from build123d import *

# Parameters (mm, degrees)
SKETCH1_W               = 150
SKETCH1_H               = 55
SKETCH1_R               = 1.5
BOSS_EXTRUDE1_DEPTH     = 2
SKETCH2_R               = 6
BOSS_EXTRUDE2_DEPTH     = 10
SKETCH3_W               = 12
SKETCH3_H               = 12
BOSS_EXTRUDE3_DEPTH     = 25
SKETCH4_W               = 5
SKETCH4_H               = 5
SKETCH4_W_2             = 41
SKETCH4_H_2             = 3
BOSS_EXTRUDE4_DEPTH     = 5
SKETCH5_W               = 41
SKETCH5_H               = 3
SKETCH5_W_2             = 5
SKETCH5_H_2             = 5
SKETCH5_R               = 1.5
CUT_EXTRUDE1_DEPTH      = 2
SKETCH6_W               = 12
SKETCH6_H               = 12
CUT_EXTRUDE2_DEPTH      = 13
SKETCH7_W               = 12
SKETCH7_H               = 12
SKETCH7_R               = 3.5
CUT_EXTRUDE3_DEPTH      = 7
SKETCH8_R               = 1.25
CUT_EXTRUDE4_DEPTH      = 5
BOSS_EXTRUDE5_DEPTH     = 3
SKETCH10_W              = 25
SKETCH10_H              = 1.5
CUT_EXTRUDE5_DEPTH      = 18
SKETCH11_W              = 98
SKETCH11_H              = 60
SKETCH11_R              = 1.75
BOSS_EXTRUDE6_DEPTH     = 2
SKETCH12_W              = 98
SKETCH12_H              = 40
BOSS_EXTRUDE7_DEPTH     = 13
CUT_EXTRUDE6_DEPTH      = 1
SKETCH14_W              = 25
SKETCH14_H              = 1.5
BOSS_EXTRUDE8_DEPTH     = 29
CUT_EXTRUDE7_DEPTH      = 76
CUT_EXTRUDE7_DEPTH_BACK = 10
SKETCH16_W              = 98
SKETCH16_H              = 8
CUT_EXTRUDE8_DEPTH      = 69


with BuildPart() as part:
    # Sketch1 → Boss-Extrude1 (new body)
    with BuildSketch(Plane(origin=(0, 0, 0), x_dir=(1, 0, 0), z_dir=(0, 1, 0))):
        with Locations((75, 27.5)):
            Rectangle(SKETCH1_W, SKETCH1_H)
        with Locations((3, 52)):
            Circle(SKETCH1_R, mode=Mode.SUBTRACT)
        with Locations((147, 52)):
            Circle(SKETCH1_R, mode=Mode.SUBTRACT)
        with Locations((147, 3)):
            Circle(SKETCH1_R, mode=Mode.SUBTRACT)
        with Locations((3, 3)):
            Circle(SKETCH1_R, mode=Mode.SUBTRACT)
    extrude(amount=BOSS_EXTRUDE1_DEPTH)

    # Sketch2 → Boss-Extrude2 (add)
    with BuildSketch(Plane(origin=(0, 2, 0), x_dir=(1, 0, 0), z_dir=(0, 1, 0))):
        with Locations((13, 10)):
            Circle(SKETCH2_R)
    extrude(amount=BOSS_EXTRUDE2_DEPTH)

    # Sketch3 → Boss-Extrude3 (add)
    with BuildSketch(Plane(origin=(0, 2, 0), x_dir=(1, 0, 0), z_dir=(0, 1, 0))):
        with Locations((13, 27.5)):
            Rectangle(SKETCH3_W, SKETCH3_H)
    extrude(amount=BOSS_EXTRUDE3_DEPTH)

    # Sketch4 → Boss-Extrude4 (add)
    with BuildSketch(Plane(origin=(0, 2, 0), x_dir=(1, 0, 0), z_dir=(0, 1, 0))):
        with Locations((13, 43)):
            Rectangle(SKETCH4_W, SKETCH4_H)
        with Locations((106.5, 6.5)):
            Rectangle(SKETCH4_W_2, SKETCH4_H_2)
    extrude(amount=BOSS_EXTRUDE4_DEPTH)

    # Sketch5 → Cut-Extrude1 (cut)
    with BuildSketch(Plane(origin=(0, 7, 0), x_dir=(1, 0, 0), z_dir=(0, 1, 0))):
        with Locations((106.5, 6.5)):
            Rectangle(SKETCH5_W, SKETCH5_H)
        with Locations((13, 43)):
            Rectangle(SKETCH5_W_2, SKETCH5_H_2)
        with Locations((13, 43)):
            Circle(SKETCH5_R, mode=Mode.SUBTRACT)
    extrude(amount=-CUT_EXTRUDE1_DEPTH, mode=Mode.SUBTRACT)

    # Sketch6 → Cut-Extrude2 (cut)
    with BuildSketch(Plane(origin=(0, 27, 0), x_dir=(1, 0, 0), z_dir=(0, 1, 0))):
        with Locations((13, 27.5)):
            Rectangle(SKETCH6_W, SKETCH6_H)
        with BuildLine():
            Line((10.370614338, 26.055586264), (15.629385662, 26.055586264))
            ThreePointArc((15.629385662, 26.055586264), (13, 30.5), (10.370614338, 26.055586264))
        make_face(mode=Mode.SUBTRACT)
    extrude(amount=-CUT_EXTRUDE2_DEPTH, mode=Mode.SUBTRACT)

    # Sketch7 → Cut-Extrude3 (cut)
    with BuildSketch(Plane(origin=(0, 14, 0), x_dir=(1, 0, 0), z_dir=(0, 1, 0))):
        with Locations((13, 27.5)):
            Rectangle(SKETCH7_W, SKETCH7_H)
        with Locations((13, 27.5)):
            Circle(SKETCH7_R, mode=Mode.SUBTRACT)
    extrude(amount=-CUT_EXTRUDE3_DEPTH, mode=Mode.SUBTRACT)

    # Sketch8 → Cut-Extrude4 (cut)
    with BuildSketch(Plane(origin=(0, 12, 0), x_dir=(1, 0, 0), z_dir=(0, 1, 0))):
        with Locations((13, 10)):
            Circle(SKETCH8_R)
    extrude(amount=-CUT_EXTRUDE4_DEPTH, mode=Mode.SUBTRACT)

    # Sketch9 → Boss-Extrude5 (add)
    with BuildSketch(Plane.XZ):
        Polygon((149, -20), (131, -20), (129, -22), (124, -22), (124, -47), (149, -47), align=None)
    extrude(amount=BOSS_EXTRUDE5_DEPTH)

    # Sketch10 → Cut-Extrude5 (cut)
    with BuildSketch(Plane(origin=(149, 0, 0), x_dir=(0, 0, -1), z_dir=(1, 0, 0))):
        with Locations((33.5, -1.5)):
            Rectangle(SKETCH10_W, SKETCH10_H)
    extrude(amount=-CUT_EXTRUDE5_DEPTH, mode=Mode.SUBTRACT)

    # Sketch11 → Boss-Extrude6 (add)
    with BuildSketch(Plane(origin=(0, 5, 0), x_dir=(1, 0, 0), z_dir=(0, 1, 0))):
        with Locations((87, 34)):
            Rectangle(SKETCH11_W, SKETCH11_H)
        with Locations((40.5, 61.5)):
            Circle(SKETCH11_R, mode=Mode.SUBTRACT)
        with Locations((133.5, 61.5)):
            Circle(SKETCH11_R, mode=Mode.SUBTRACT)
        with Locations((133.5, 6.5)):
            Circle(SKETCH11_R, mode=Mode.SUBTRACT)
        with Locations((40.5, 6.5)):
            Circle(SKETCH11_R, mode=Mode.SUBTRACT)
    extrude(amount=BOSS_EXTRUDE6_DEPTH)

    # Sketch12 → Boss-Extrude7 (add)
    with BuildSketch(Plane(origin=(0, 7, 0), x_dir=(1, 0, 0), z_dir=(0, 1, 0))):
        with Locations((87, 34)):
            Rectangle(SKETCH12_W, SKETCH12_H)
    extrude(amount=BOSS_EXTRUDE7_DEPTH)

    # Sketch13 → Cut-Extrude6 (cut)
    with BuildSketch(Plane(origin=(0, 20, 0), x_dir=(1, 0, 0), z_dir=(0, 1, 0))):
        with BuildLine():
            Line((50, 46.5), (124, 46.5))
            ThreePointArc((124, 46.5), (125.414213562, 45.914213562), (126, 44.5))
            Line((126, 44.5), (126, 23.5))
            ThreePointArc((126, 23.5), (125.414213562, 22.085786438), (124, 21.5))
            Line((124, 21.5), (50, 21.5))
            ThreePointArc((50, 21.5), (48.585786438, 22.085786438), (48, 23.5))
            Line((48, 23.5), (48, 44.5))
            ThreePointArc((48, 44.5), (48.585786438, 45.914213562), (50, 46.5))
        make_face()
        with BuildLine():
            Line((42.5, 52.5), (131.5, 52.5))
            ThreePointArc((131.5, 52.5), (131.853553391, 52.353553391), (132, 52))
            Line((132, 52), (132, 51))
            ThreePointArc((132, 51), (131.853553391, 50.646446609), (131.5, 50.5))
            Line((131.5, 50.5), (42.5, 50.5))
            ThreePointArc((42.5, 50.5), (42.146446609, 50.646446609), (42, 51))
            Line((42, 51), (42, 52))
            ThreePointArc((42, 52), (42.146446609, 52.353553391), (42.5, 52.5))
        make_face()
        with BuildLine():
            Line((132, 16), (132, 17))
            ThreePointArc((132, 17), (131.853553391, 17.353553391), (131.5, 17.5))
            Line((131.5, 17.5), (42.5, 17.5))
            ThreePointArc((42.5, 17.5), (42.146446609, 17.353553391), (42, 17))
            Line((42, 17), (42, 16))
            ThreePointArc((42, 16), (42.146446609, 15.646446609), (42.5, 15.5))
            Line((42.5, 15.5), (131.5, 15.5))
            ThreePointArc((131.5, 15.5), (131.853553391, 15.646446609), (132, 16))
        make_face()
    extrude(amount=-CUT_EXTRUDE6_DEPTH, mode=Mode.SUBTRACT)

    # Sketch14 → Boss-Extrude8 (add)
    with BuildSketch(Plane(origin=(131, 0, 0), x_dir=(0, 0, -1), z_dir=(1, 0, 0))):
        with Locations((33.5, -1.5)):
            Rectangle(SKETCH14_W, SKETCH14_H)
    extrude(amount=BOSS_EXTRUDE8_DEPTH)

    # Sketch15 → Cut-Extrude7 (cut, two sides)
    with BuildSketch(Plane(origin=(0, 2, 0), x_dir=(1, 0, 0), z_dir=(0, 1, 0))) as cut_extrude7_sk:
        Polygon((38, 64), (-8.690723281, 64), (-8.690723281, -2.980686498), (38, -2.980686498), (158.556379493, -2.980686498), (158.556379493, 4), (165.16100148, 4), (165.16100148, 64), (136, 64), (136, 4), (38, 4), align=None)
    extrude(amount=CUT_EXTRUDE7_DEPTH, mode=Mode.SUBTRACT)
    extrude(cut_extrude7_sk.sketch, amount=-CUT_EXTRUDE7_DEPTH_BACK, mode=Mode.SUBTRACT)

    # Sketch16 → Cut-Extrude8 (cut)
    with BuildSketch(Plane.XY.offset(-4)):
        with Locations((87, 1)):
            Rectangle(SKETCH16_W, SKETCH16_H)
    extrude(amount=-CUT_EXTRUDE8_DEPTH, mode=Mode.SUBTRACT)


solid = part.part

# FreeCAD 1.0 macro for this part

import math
import FreeCAD as App
import Part
import Sketcher

V = App.Vector
Q = App.Units.Quantity

doc = App.newDocument("Part")
body = doc.addObject("PartDesign::Body", "Body")

sketch1 = doc.addObject("Sketcher::SketchObject", "Sketch")
body.addObject(sketch1)
sketch1.AttachmentSupport = (doc.XZ_Plane, [""])
sketch1.MapMode = "FlatFace"
sketch1.addGeometry([
    Part.LineSegment(V(0, -55, 0), V(0, 0, 0)),
    Part.LineSegment(V(0, 0, 0), V(150, 0, 0)),
    Part.LineSegment(V(150, 0, 0), V(150, -55, 0)),
    Part.LineSegment(V(150, -55, 0), V(0, -55, 0)),
    Part.Circle(V(3, -3, 0), V(0, 0, 1), 1.5),
    Part.Circle(V(147, -3, 0), V(0, 0, 1), 1.5),
    Part.Circle(V(3, -52, 0), V(0, 0, 1), 1.5),
    Part.Circle(V(147, -52, 0), V(0, 0, 1), 1.5),
], False)
sketch1.addConstraint([
    Sketcher.Constraint("Coincident", 0, 2, 1, 1),
    Sketcher.Constraint("Coincident", 1, 2, 2, 1),
    Sketcher.Constraint("Coincident", 2, 2, 3, 1),
    Sketcher.Constraint("Coincident", 3, 2, 0, 1),
    Sketcher.Constraint("Vertical", 0),
    Sketcher.Constraint("Horizontal", 1),
    Sketcher.Constraint("Vertical", 2),
    Sketcher.Constraint("Horizontal", 3),
    Sketcher.Constraint("Coincident", 0, 2, -1, 1),
    Sketcher.Constraint("Equal", 4, 5),
    Sketcher.Constraint("Equal", 5, 6),
    Sketcher.Constraint("Equal", 6, 7),
    Sketcher.Constraint("Horizontal", 4, 3, 5, 3),
    Sketcher.Constraint("Horizontal", 6, 3, 7, 3),
    Sketcher.Constraint("Vertical", 4, 3, 6, 3),
    Sketcher.Constraint("Vertical", 5, 3, 7, 3),
    Sketcher.Constraint("Diameter", 4, Q("3 mm")),
    Sketcher.Constraint("DistanceX", 1, 1, 1, 2, Q("150 mm")),
    Sketcher.Constraint("DistanceY", 0, 1, 0, 2, Q("55 mm")),
    Sketcher.Constraint("DistanceX", -1, 1, 4, 3, Q("3 mm")),
    Sketcher.Constraint("DistanceY", 4, 3, -1, 1, Q("3 mm")),
    Sketcher.Constraint("DistanceX", -1, 1, 5, 3, Q("147 mm")),
    Sketcher.Constraint("DistanceY", 6, 3, -1, 1, Q("52 mm")),
])
pad1 = doc.addObject("PartDesign::Pad", "Pad")
body.addObject(pad1)
pad1.Profile = sketch1
pad1.Length = 2
pad1.Reversed = True

sketch2 = doc.addObject("Sketcher::SketchObject", "Sketch001")
body.addObject(sketch2)
sketch2.AttachmentSupport = (doc.XZ_Plane, [""])
sketch2.MapMode = "FlatFace"
sketch2.AttachmentOffset = App.Placement(V(0, 0, -2), App.Rotation())
sketch2.addGeometry(Part.Circle(V(13, -10, 0), V(0, 0, 1), 6), False)
sketch2.addConstraint([
    Sketcher.Constraint("Diameter", 0, Q("12 mm")),
    Sketcher.Constraint("DistanceX", -1, 1, 0, 3, Q("13 mm")),
    Sketcher.Constraint("DistanceY", 0, 3, -1, 1, Q("10 mm")),
])
pad2 = doc.addObject("PartDesign::Pad", "Pad001")
body.addObject(pad2)
pad2.Profile = sketch2
pad2.Length = 10
pad2.Reversed = True

sketch3 = doc.addObject("Sketcher::SketchObject", "Sketch002")
body.addObject(sketch3)
sketch3.AttachmentSupport = (doc.XZ_Plane, [""])
sketch3.MapMode = "FlatFace"
sketch3.AttachmentOffset = App.Placement(V(0, 0, -2), App.Rotation())
sketch3.addGeometry([
    Part.LineSegment(V(7, -34, 0), V(7, -22, 0)),
    Part.LineSegment(V(7, -22, 0), V(19, -22, 0)),
    Part.LineSegment(V(19, -22, 0), V(19, -34, 0)),
    Part.LineSegment(V(19, -34, 0), V(7, -34, 0)),
], False)
sketch3.addConstraint([
    Sketcher.Constraint("Coincident", 0, 2, 1, 1),
    Sketcher.Constraint("Coincident", 1, 2, 2, 1),
    Sketcher.Constraint("Coincident", 2, 2, 3, 1),
    Sketcher.Constraint("Coincident", 3, 2, 0, 1),
    Sketcher.Constraint("Vertical", 0),
    Sketcher.Constraint("Horizontal", 1),
    Sketcher.Constraint("Vertical", 2),
    Sketcher.Constraint("Horizontal", 3),
    Sketcher.Constraint("Equal", 3, 0),
    Sketcher.Constraint("DistanceX", 1, 1, 1, 2, Q("12 mm")),
    Sketcher.Constraint("DistanceX", -1, 1, 0, 2, Q("7 mm")),
    Sketcher.Constraint("DistanceY", 0, 2, -1, 1, Q("21.5 mm")),
])
pad3 = doc.addObject("PartDesign::Pad", "Pad002")
body.addObject(pad3)
pad3.Profile = sketch3
pad3.Length = 25
pad3.Reversed = True

sketch4 = doc.addObject("Sketcher::SketchObject", "Sketch003")
body.addObject(sketch4)
sketch4.AttachmentSupport = (doc.XZ_Plane, [""])
sketch4.MapMode = "FlatFace"
sketch4.AttachmentOffset = App.Placement(V(0, 0, -2), App.Rotation())
sketch4.addGeometry([
    Part.LineSegment(V(10.5, -45.5, 0), V(10.5, -40.5, 0)),
    Part.LineSegment(V(10.5, -40.5, 0), V(15.5, -40.5, 0)),
    Part.LineSegment(V(15.5, -40.5, 0), V(15.5, -45.5, 0)),
    Part.LineSegment(V(15.5, -45.5, 0), V(10.5, -45.5, 0)),
    Part.LineSegment(V(86, -8, 0), V(86, -5, 0)),
    Part.LineSegment(V(86, -5, 0), V(127, -5, 0)),
    Part.LineSegment(V(127, -5, 0), V(127, -8, 0)),
    Part.LineSegment(V(127, -8, 0), V(86, -8, 0)),
], False)
sketch4.addConstraint([
    Sketcher.Constraint("Coincident", 0, 2, 1, 1),
    Sketcher.Constraint("Coincident", 1, 2, 2, 1),
    Sketcher.Constraint("Coincident", 2, 2, 3, 1),
    Sketcher.Constraint("Coincident", 3, 2, 0, 1),
    Sketcher.Constraint("Coincident", 4, 2, 5, 1),
    Sketcher.Constraint("Coincident", 5, 2, 6, 1),
    Sketcher.Constraint("Coincident", 6, 2, 7, 1),
    Sketcher.Constraint("Coincident", 7, 2, 4, 1),
    Sketcher.Constraint("Vertical", 0),
    Sketcher.Constraint("Horizontal", 1),
    Sketcher.Constraint("Vertical", 2),
    Sketcher.Constraint("Horizontal", 3),
    Sketcher.Constraint("Vertical", 4),
    Sketcher.Constraint("Horizontal", 5),
    Sketcher.Constraint("Vertical", 6),
    Sketcher.Constraint("Horizontal", 7),
    Sketcher.Constraint("Equal", 3, 0),
    Sketcher.Constraint("DistanceX", 1, 1, 1, 2, Q("5 mm")),
    Sketcher.Constraint("DistanceX", 5, 1, 5, 2, Q("41 mm")),
    Sketcher.Constraint("DistanceY", 4, 1, 4, 2, Q("3 mm")),
    Sketcher.Constraint("DistanceX", -1, 1, 4, 2, Q("86 mm")),
    Sketcher.Constraint("DistanceY", 4, 2, -1, 1, Q("5 mm")),
    Sketcher.Constraint("DistanceX", -1, 1, 0, 2, Q("10.5 mm")),
    Sketcher.Constraint("DistanceY", 0, 2, -1, 1, Q("40.5 mm")),
])
pad4 = doc.addObject("PartDesign::Pad", "Pad003")
body.addObject(pad4)
pad4.Profile = sketch4
pad4.Length = 5
pad4.Reversed = True

sketch5 = doc.addObject("Sketcher::SketchObject", "Sketch004")
body.addObject(sketch5)
sketch5.AttachmentSupport = (doc.XZ_Plane, [""])
sketch5.MapMode = "FlatFace"
sketch5.AttachmentOffset = App.Placement(V(0, 0, -7), App.Rotation())
sketch5.addGeometry([
    Part.LineSegment(V(86, -8, 0), V(86, -5, 0)),
    Part.LineSegment(V(86, -5, 0), V(127, -5, 0)),
    Part.LineSegment(V(127, -5, 0), V(127, -8, 0)),
    Part.LineSegment(V(127, -8, 0), V(86, -8, 0)),
    Part.LineSegment(V(10.5, -45.5, 0), V(10.5, -40.5, 0)),
    Part.LineSegment(V(10.5, -40.5, 0), V(15.5, -40.5, 0)),
    Part.LineSegment(V(15.5, -40.5, 0), V(15.5, -45.5, 0)),
    Part.LineSegment(V(15.5, -45.5, 0), V(10.5, -45.5, 0)),
    Part.Circle(V(13, -43, 0), V(0, 0, 1), 1.5),
], False)
sketch5.addConstraint([
    Sketcher.Constraint("Coincident", 0, 2, 1, 1),
    Sketcher.Constraint("Coincident", 1, 2, 2, 1),
    Sketcher.Constraint("Coincident", 2, 2, 3, 1),
    Sketcher.Constraint("Coincident", 3, 2, 0, 1),
    Sketcher.Constraint("Coincident", 4, 2, 5, 1),
    Sketcher.Constraint("Coincident", 5, 2, 6, 1),
    Sketcher.Constraint("Coincident", 6, 2, 7, 1),
    Sketcher.Constraint("Coincident", 7, 2, 4, 1),
    Sketcher.Constraint("Vertical", 0),
    Sketcher.Constraint("Horizontal", 1),
    Sketcher.Constraint("Vertical", 2),
    Sketcher.Constraint("Horizontal", 3),
    Sketcher.Constraint("Vertical", 4),
    Sketcher.Constraint("Horizontal", 5),
    Sketcher.Constraint("Vertical", 6),
    Sketcher.Constraint("Horizontal", 7),
    Sketcher.Constraint("Equal", 7, 4),
    Sketcher.Constraint("Diameter", 8, Q("3 mm")),
    Sketcher.Constraint("DistanceX", 1, 1, 1, 2, Q("41 mm")),
    Sketcher.Constraint("DistanceX", 5, 1, 5, 2, Q("5 mm")),
    Sketcher.Constraint("DistanceY", 0, 1, 0, 2, Q("3 mm")),
    Sketcher.Constraint("DistanceX", -1, 1, 8, 3, Q("13 mm")),
    Sketcher.Constraint("DistanceY", 8, 3, -1, 1, Q("43 mm")),
    Sketcher.Constraint("DistanceX", -1, 1, 0, 2, Q("86 mm")),
    Sketcher.Constraint("DistanceY", 0, 2, -1, 1, Q("5 mm")),
    Sketcher.Constraint("DistanceX", -1, 1, 4, 2, Q("10.5 mm")),
    Sketcher.Constraint("DistanceY", 4, 2, -1, 1, Q("40.5 mm")),
])
pocket1 = doc.addObject("PartDesign::Pocket", "Pocket")
body.addObject(pocket1)
pocket1.Profile = sketch5
pocket1.Length = 2
pocket1.Reversed = True

sketch6 = doc.addObject("Sketcher::SketchObject", "Sketch005")
body.addObject(sketch6)
sketch6.AttachmentSupport = (doc.XZ_Plane, [""])
sketch6.MapMode = "FlatFace"
sketch6.AttachmentOffset = App.Placement(V(0, 0, -27), App.Rotation())
sketch6.addGeometry([
    Part.LineSegment(V(7, -33.5, 0), V(7, -21.5, 0)),
    Part.LineSegment(V(7, -21.5, 0), V(19, -21.5, 0)),
    Part.LineSegment(V(19, -21.5, 0), V(19, -33.5, 0)),
    Part.LineSegment(V(19, -33.5, 0), V(7, -33.5, 0)),
    Part.LineSegment(V(15.6, -26.1, 0), V(10.4, -26.1, 0)),
    Part.ArcOfCircle(Part.Circle(V(13, -27.5, 0), V(0, 0, 1), 3), math.radians(151), math.radians(389)),
], False)
sketch6.addConstraint([
    Sketcher.Constraint("Coincident", 0, 2, 1, 1),
    Sketcher.Constraint("Coincident", 1, 2, 2, 1),
    Sketcher.Constraint("Coincident", 2, 2, 3, 1),
    Sketcher.Constraint("Coincident", 3, 2, 0, 1),
    Sketcher.Constraint("Coincident", 4, 1, 5, 2),
    Sketcher.Constraint("Coincident", 5, 1, 4, 2),
    Sketcher.Constraint("Vertical", 0),
    Sketcher.Constraint("Horizontal", 1),
    Sketcher.Constraint("Vertical", 2),
    Sketcher.Constraint("Horizontal", 3),
    Sketcher.Constraint("Horizontal", 4),
    Sketcher.Constraint("Equal", 3, 0),
    Sketcher.Constraint("Radius", 5, Q("3 mm")),
    Sketcher.Constraint("DistanceX", 1, 1, 1, 2, Q("12 mm")),
    Sketcher.Constraint("DistanceX", -1, 1, 5, 3, Q("13 mm")),
    Sketcher.Constraint("DistanceX", -1, 1, 0, 2, Q("7 mm")),
    Sketcher.Constraint("DistanceY", 5, 3, 0, 2, Q("6 mm")),
    Sketcher.Constraint("DistanceY", 5, 3, -1, 1, Q("27.5 mm")),
    Sketcher.Constraint("DistanceX", 4, 2, 4, 1, Q("5.258771 mm")),
])
pocket2 = doc.addObject("PartDesign::Pocket", "Pocket001")
body.addObject(pocket2)
pocket2.Profile = sketch6
pocket2.Length = 13
pocket2.Reversed = True

sketch7 = doc.addObject("Sketcher::SketchObject", "Sketch006")
body.addObject(sketch7)
sketch7.AttachmentSupport = (doc.XZ_Plane, [""])
sketch7.MapMode = "FlatFace"
sketch7.AttachmentOffset = App.Placement(V(0, 0, -14), App.Rotation())
sketch7.addGeometry([
    Part.LineSegment(V(7, -33.5, 0), V(7, -21.5, 0)),
    Part.LineSegment(V(7, -21.5, 0), V(19, -21.5, 0)),
    Part.LineSegment(V(19, -21.5, 0), V(19, -33.5, 0)),
    Part.LineSegment(V(19, -33.5, 0), V(7, -33.5, 0)),
    Part.Circle(V(13, -27.5, 0), V(0, 0, 1), 3.5),
], False)
sketch7.addConstraint([
    Sketcher.Constraint("Coincident", 0, 2, 1, 1),
    Sketcher.Constraint("Coincident", 1, 2, 2, 1),
    Sketcher.Constraint("Coincident", 2, 2, 3, 1),
    Sketcher.Constraint("Coincident", 3, 2, 0, 1),
    Sketcher.Constraint("Vertical", 0),
    Sketcher.Constraint("Horizontal", 1),
    Sketcher.Constraint("Vertical", 2),
    Sketcher.Constraint("Horizontal", 3),
    Sketcher.Constraint("Equal", 3, 0),
    Sketcher.Constraint("Diameter", 4, Q("7 mm")),
    Sketcher.Constraint("DistanceX", 1, 1, 1, 2, Q("12 mm")),
    Sketcher.Constraint("DistanceX", -1, 1, 4, 3, Q("13 mm")),
    Sketcher.Constraint("DistanceX", -1, 1, 0, 2, Q("7 mm")),
    Sketcher.Constraint("DistanceY", 4, 3, 0, 2, Q("6 mm")),
    Sketcher.Constraint("DistanceY", 4, 3, -1, 1, Q("27.5 mm")),
])
pocket3 = doc.addObject("PartDesign::Pocket", "Pocket002")
body.addObject(pocket3)
pocket3.Profile = sketch7
pocket3.Length = 7
pocket3.Reversed = True

sketch8 = doc.addObject("Sketcher::SketchObject", "Sketch007")
body.addObject(sketch8)
sketch8.AttachmentSupport = (doc.XZ_Plane, [""])
sketch8.MapMode = "FlatFace"
sketch8.AttachmentOffset = App.Placement(V(0, 0, -12), App.Rotation())
sketch8.addGeometry(Part.Circle(V(13, -10, 0), V(0, 0, 1), 1.2), False)
sketch8.addConstraint([
    Sketcher.Constraint("Diameter", 0, Q("2.5 mm")),
    Sketcher.Constraint("DistanceX", -1, 1, 0, 3, Q("13 mm")),
    Sketcher.Constraint("DistanceY", 0, 3, -1, 1, Q("10 mm")),
])
pocket4 = doc.addObject("PartDesign::Pocket", "Pocket003")
body.addObject(pocket4)
pocket4.Profile = sketch8
pocket4.Length = 5
pocket4.Reversed = True

sketch9 = doc.addObject("Sketcher::SketchObject", "Sketch008")
body.addObject(sketch9)
sketch9.AttachmentSupport = (doc.XZ_Plane, [""])
sketch9.MapMode = "FlatFace"
sketch9.addGeometry([
    Part.LineSegment(V(149, -20, 0), V(131, -20, 0)),
    Part.LineSegment(V(131, -20, 0), V(129, -22, 0)),
    Part.LineSegment(V(129, -22, 0), V(124, -22, 0)),
    Part.LineSegment(V(124, -22, 0), V(124, -47, 0)),
    Part.LineSegment(V(124, -47, 0), V(149, -47, 0)),
    Part.LineSegment(V(149, -47, 0), V(149, -20, 0)),
], False)
sketch9.addConstraint([
    Sketcher.Constraint("Coincident", 0, 2, 1, 1),
    Sketcher.Constraint("Coincident", 1, 2, 2, 1),
    Sketcher.Constraint("Coincident", 2, 2, 3, 1),
    Sketcher.Constraint("Coincident", 3, 2, 4, 1),
    Sketcher.Constraint("Coincident", 4, 2, 5, 1),
    Sketcher.Constraint("Coincident", 5, 2, 0, 1),
    Sketcher.Constraint("Horizontal", 0),
    Sketcher.Constraint("Horizontal", 2),
    Sketcher.Constraint("Vertical", 3),
    Sketcher.Constraint("Horizontal", 4),
    Sketcher.Constraint("Vertical", 5),
    Sketcher.Constraint("Equal", 4, 3),
    Sketcher.Constraint("DistanceX", 0, 2, 0, 1, Q("18 mm")),
    Sketcher.Constraint("DistanceX", 2, 2, 2, 1, Q("5 mm")),
    Sketcher.Constraint("DistanceX", 4, 1, 4, 2, Q("25 mm")),
    Sketcher.Constraint("DistanceY", 5, 1, 5, 2, Q("27 mm")),
    Sketcher.Constraint("DistanceX", -1, 1, 0, 2, Q("131 mm")),
    Sketcher.Constraint("DistanceY", 0, 2, -1, 1, Q("20 mm")),
])
pad5 = doc.addObject("PartDesign::Pad", "Pad004")
body.addObject(pad5)
pad5.Profile = sketch9
pad5.Length = 3

sketch10 = doc.addObject("Sketcher::SketchObject", "Sketch009")
body.addObject(sketch10)
sketch10.AttachmentSupport = (doc.YZ_Plane, [""])
sketch10.MapMode = "FlatFace"
sketch10.AttachmentOffset = App.Placement(V(0, 0, 149), App.Rotation())
sketch10.addGeometry([
    Part.LineSegment(V(-0.8, -21, 0), V(-2.2, -21, 0)),
    Part.LineSegment(V(-2.2, -21, 0), V(-2.2, -46, 0)),
    Part.LineSegment(V(-2.2, -46, 0), V(-0.8, -46, 0)),
    Part.LineSegment(V(-0.8, -46, 0), V(-0.8, -21, 0)),
], False)
sketch10.addConstraint([
    Sketcher.Constraint("Coincident", 0, 2, 1, 1),
    Sketcher.Constraint("Coincident", 1, 2, 2, 1),
    Sketcher.Constraint("Coincident", 2, 2, 3, 1),
    Sketcher.Constraint("Coincident", 3, 2, 0, 1),
    Sketcher.Constraint("Horizontal", 0),
    Sketcher.Constraint("Vertical", 1),
    Sketcher.Constraint("Horizontal", 2),
    Sketcher.Constraint("Vertical", 3),
    Sketcher.Constraint("DistanceY", 1, 2, 1, 1, Q("25 mm")),
    Sketcher.Constraint("DistanceX", 0, 2, 0, 1, Q("1.5 mm")),
    Sketcher.Constraint("DistanceY", 0, 2, -1, 1, Q("21 mm")),
    Sketcher.Constraint("DistanceX", 0, 2, -1, 1, Q("2.25 mm")),
])
pocket5 = doc.addObject("PartDesign::Pocket", "Pocket004")
body.addObject(pocket5)
pocket5.Profile = sketch10
pocket5.Length = 18

sketch11 = doc.addObject("Sketcher::SketchObject", "Sketch010")
body.addObject(sketch11)
sketch11.AttachmentSupport = (doc.XZ_Plane, [""])
sketch11.MapMode = "FlatFace"
sketch11.AttachmentOffset = App.Placement(V(0, 0, -5), App.Rotation())
sketch11.addGeometry([
    Part.LineSegment(V(38, -64, 0), V(38, -4, 0)),
    Part.LineSegment(V(38, -4, 0), V(136, -4, 0)),
    Part.LineSegment(V(136, -4, 0), V(136, -64, 0)),
    Part.LineSegment(V(136, -64, 0), V(38, -64, 0)),
    Part.Circle(V(40.5, -6.5, 0), V(0, 0, 1), 1.8),
    Part.Circle(V(133.5, -6.5, 0), V(0, 0, 1), 1.8),
    Part.Circle(V(40.5, -61.5, 0), V(0, 0, 1), 1.8),
    Part.Circle(V(133.5, -61.5, 0), V(0, 0, 1), 1.8),
], False)
sketch11.addConstraint([
    Sketcher.Constraint("Coincident", 0, 2, 1, 1),
    Sketcher.Constraint("Coincident", 1, 2, 2, 1),
    Sketcher.Constraint("Coincident", 2, 2, 3, 1),
    Sketcher.Constraint("Coincident", 3, 2, 0, 1),
    Sketcher.Constraint("Vertical", 0),
    Sketcher.Constraint("Horizontal", 1),
    Sketcher.Constraint("Vertical", 2),
    Sketcher.Constraint("Horizontal", 3),
    Sketcher.Constraint("Equal", 4, 5),
    Sketcher.Constraint("Equal", 5, 6),
    Sketcher.Constraint("Equal", 6, 7),
    Sketcher.Constraint("Horizontal", 4, 3, 5, 3),
    Sketcher.Constraint("Horizontal", 6, 3, 7, 3),
    Sketcher.Constraint("Vertical", 4, 3, 6, 3),
    Sketcher.Constraint("Vertical", 5, 3, 7, 3),
    Sketcher.Constraint("Diameter", 4, Q("3.5 mm")),
    Sketcher.Constraint("DistanceX", 1, 1, 1, 2, Q("98 mm")),
    Sketcher.Constraint("DistanceY", 0, 1, 0, 2, Q("60 mm")),
    Sketcher.Constraint("DistanceX", -1, 1, 0, 2, Q("38 mm")),
    Sketcher.Constraint("DistanceY", 0, 2, -1, 1, Q("4 mm")),
    Sketcher.Constraint("DistanceX", 4, 3, 5, 3, Q("93 mm")),
    Sketcher.Constraint("DistanceY", 6, 3, 4, 3, Q("55 mm")),
    Sketcher.Constraint("DistanceX", -1, 1, 4, 3, Q("40.5 mm")),
    Sketcher.Constraint("DistanceY", 4, 3, -1, 1, Q("6.5 mm")),
])
pad6 = doc.addObject("PartDesign::Pad", "Pad005")
body.addObject(pad6)
pad6.Profile = sketch11
pad6.Length = 2
pad6.Reversed = True

sketch12 = doc.addObject("Sketcher::SketchObject", "Sketch011")
body.addObject(sketch12)
sketch12.AttachmentSupport = (doc.XZ_Plane, [""])
sketch12.MapMode = "FlatFace"
sketch12.AttachmentOffset = App.Placement(V(0, 0, -7), App.Rotation())
sketch12.addGeometry([
    Part.LineSegment(V(38, -54, 0), V(38, -14, 0)),
    Part.LineSegment(V(38, -14, 0), V(136, -14, 0)),
    Part.LineSegment(V(136, -14, 0), V(136, -54, 0)),
    Part.LineSegment(V(136, -54, 0), V(38, -54, 0)),
], False)
sketch12.addConstraint([
    Sketcher.Constraint("Coincident", 0, 2, 1, 1),
    Sketcher.Constraint("Coincident", 1, 2, 2, 1),
    Sketcher.Constraint("Coincident", 2, 2, 3, 1),
    Sketcher.Constraint("Coincident", 3, 2, 0, 1),
    Sketcher.Constraint("Vertical", 0),
    Sketcher.Constraint("Horizontal", 1),
    Sketcher.Constraint("Vertical", 2),
    Sketcher.Constraint("Horizontal", 3),
    Sketcher.Constraint("DistanceX", 1, 1, 1, 2, Q("98 mm")),
    Sketcher.Constraint("DistanceY", 0, 1, 0, 2, Q("40 mm")),
    Sketcher.Constraint("DistanceX", -1, 1, 0, 2, Q("38 mm")),
    Sketcher.Constraint("DistanceY", 0, 2, -1, 1, Q("14 mm")),
])
pad7 = doc.addObject("PartDesign::Pad", "Pad006")
body.addObject(pad7)
pad7.Profile = sketch12
pad7.Length = 13
pad7.Reversed = True

sketch13 = doc.addObject("Sketcher::SketchObject", "Sketch012")
body.addObject(sketch13)
sketch13.AttachmentSupport = (doc.XZ_Plane, [""])
sketch13.MapMode = "FlatFace"
sketch13.AttachmentOffset = App.Placement(V(0, 0, -20), App.Rotation())
sketch13.addGeometry([
    Part.LineSegment(V(124, -46.5, 0), V(50, -46.5, 0)),
    Part.ArcOfCircle(Part.Circle(V(50, -44.5, 0), V(0, 0, 1), 2), math.radians(-180), math.radians(-90)),
    Part.LineSegment(V(48, -44.5, 0), V(48, -23.5, 0)),
    Part.ArcOfCircle(Part.Circle(V(50, -23.5, 0), V(0, 0, 1), 2), math.radians(90), math.radians(180)),
    Part.LineSegment(V(50, -21.5, 0), V(124, -21.5, 0)),
    Part.ArcOfCircle(Part.Circle(V(124, -23.5, 0), V(0, 0, 1), 2), math.radians(0), math.radians(90)),
    Part.LineSegment(V(126, -23.5, 0), V(126, -44.5, 0)),
    Part.ArcOfCircle(Part.Circle(V(124, -44.5, 0), V(0, 0, 1), 2), math.radians(-90), math.radians(0)),
    Part.LineSegment(V(131.5, -52.5, 0), V(42.5, -52.5, 0)),
    Part.ArcOfCircle(Part.Circle(V(42.5, -52, 0), V(0, 0, 1), 0.5), math.radians(180), math.radians(270)),
    Part.LineSegment(V(42, -52, 0), V(42, -51, 0)),
    Part.ArcOfCircle(Part.Circle(V(42.5, -51, 0), V(0, 0, 1), 0.5), math.radians(90), math.radians(180)),
    Part.LineSegment(V(42.5, -50.5, 0), V(131.5, -50.5, 0)),
    Part.ArcOfCircle(Part.Circle(V(131.5, -51, 0), V(0, 0, 1), 0.5), math.radians(0), math.radians(90)),
    Part.LineSegment(V(132, -51, 0), V(132, -52, 0)),
    Part.ArcOfCircle(Part.Circle(V(131.5, -52, 0), V(0, 0, 1), 0.5), math.radians(-90), math.radians(0)),
    Part.LineSegment(V(132, -16, 0), V(132, -17, 0)),
    Part.ArcOfCircle(Part.Circle(V(131.5, -17, 0), V(0, 0, 1), 0.5), math.radians(-90), math.radians(0)),
    Part.LineSegment(V(131.5, -17.5, 0), V(42.5, -17.5, 0)),
    Part.ArcOfCircle(Part.Circle(V(42.5, -17, 0), V(0, 0, 1), 0.5), math.radians(180), math.radians(270)),
    Part.LineSegment(V(42, -17, 0), V(42, -16, 0)),
    Part.ArcOfCircle(Part.Circle(V(42.5, -16, 0), V(0, 0, 1), 0.5), math.radians(90), math.radians(180)),
    Part.LineSegment(V(42.5, -15.5, 0), V(131.5, -15.5, 0)),
    Part.ArcOfCircle(Part.Circle(V(131.5, -16, 0), V(0, 0, 1), 0.5), math.radians(0), math.radians(90)),
], False)
sketch13.addConstraint([
    Sketcher.Constraint("Tangent", 0, 2, 1, 2),
    Sketcher.Constraint("Tangent", 1, 1, 2, 1),
    Sketcher.Constraint("Tangent", 2, 2, 3, 2),
    Sketcher.Constraint("Tangent", 3, 1, 4, 1),
    Sketcher.Constraint("Tangent", 4, 2, 5, 2),
    Sketcher.Constraint("Tangent", 5, 1, 6, 1),
    Sketcher.Constraint("Tangent", 6, 2, 7, 2),
    Sketcher.Constraint("Tangent", 7, 1, 0, 1),
    Sketcher.Constraint("Tangent", 8, 2, 9, 2),
    Sketcher.Constraint("Tangent", 9, 1, 10, 1),
    Sketcher.Constraint("Tangent", 10, 2, 11, 2),
    Sketcher.Constraint("Tangent", 11, 1, 12, 1),
    Sketcher.Constraint("Tangent", 12, 2, 13, 2),
    Sketcher.Constraint("Tangent", 13, 1, 14, 1),
    Sketcher.Constraint("Tangent", 14, 2, 15, 2),
    Sketcher.Constraint("Tangent", 15, 1, 8, 1),
    Sketcher.Constraint("Tangent", 16, 2, 17, 2),
    Sketcher.Constraint("Tangent", 17, 1, 18, 1),
    Sketcher.Constraint("Tangent", 18, 2, 19, 2),
    Sketcher.Constraint("Tangent", 19, 1, 20, 1),
    Sketcher.Constraint("Tangent", 20, 2, 21, 2),
    Sketcher.Constraint("Tangent", 21, 1, 22, 1),
    Sketcher.Constraint("Tangent", 22, 2, 23, 2),
    Sketcher.Constraint("Tangent", 23, 1, 16, 1),
    Sketcher.Constraint("Horizontal", 0),
    Sketcher.Constraint("Vertical", 2),
    Sketcher.Constraint("Horizontal", 4),
    Sketcher.Constraint("Vertical", 6),
    Sketcher.Constraint("Horizontal", 8),
    Sketcher.Constraint("Vertical", 10),
    Sketcher.Constraint("Horizontal", 12),
    Sketcher.Constraint("Vertical", 14),
    Sketcher.Constraint("Vertical", 16),
    Sketcher.Constraint("Horizontal", 18),
    Sketcher.Constraint("Vertical", 20),
    Sketcher.Constraint("Horizontal", 22),
    Sketcher.Constraint("Equal", 1, 3),
    Sketcher.Constraint("Equal", 3, 5),
    Sketcher.Constraint("Equal", 5, 7),
    Sketcher.Constraint("Equal", 9, 11),
    Sketcher.Constraint("Equal", 11, 13),
    Sketcher.Constraint("Equal", 13, 15),
    Sketcher.Constraint("Equal", 15, 17),
    Sketcher.Constraint("Equal", 17, 19),
    Sketcher.Constraint("Equal", 19, 21),
    Sketcher.Constraint("Equal", 21, 23),
    Sketcher.Constraint("Vertical", 15, 3, 17, 3),
    Sketcher.Constraint("Vertical", 11, 3, 19, 3),
    Sketcher.Constraint("Equal", 14, 16),
    Sketcher.Constraint("Radius", 1, Q("2 mm")),
    Sketcher.Constraint("Radius", 9, Q("0.5 mm")),
    Sketcher.Constraint("DistanceX", 0, 2, 0, 1, Q("74 mm")),
    Sketcher.Constraint("DistanceX", 8, 2, 8, 1, Q("89 mm")),
    Sketcher.Constraint("DistanceY", 2, 1, 2, 2, Q("21 mm")),
    Sketcher.Constraint("DistanceY", 10, 1, 10, 2, Q("1 mm")),
    Sketcher.Constraint("DistanceX", -1, 1, 1, 3, Q("50 mm")),
    Sketcher.Constraint("DistanceY", 9, 3, -1, 1, Q("52 mm")),
    Sketcher.Constraint("DistanceY", 17, 3, -1, 1, Q("17 mm")),
    Sketcher.Constraint("DistanceX", -1, 1, 9, 1, Q("42 mm")),
    Sketcher.Constraint("DistanceY", 8, 2, 0, 2, Q("6 mm")),
])
pocket6 = doc.addObject("PartDesign::Pocket", "Pocket005")
body.addObject(pocket6)
pocket6.Profile = sketch13
pocket6.Length = 1
pocket6.Reversed = True

sketch14 = doc.addObject("Sketcher::SketchObject", "Sketch013")
body.addObject(sketch14)
sketch14.AttachmentSupport = (doc.YZ_Plane, [""])
sketch14.MapMode = "FlatFace"
sketch14.AttachmentOffset = App.Placement(V(0, 0, 131), App.Rotation())
sketch14.addGeometry([
    Part.LineSegment(V(-0.8, -21, 0), V(-2.2, -21, 0)),
    Part.LineSegment(V(-2.2, -21, 0), V(-2.2, -46, 0)),
    Part.LineSegment(V(-2.2, -46, 0), V(-0.8, -46, 0)),
    Part.LineSegment(V(-0.8, -46, 0), V(-0.8, -21, 0)),
], False)
sketch14.addConstraint([
    Sketcher.Constraint("Coincident", 0, 2, 1, 1),
    Sketcher.Constraint("Coincident", 1, 2, 2, 1),
    Sketcher.Constraint("Coincident", 2, 2, 3, 1),
    Sketcher.Constraint("Coincident", 3, 2, 0, 1),
    Sketcher.Constraint("Horizontal", 0),
    Sketcher.Constraint("Vertical", 1),
    Sketcher.Constraint("Horizontal", 2),
    Sketcher.Constraint("Vertical", 3),
    Sketcher.Constraint("DistanceY", 1, 2, 1, 1, Q("25 mm")),
    Sketcher.Constraint("DistanceX", 0, 2, 0, 1, Q("1.5 mm")),
    Sketcher.Constraint("DistanceY", 0, 2, -1, 1, Q("21 mm")),
    Sketcher.Constraint("DistanceX", 0, 2, -1, 1, Q("2.25 mm")),
])
pad8 = doc.addObject("PartDesign::Pad", "Pad007")
body.addObject(pad8)
pad8.Profile = sketch14
pad8.Length = 29

sketch15 = doc.addObject("Sketcher::SketchObject", "Sketch014")
body.addObject(sketch15)
sketch15.AttachmentSupport = (doc.XZ_Plane, [""])
sketch15.MapMode = "FlatFace"
sketch15.AttachmentOffset = App.Placement(V(0, 0, -2), App.Rotation())
sketch15.addGeometry([
    Part.LineSegment(V(38, -64, 0), V(-9, -64, 0)),
    Part.LineSegment(V(-9, -64, 0), V(-9, 3, 0)),
    Part.LineSegment(V(-9, 3, 0), V(159, 3, 0)),
    Part.LineSegment(V(159, 3, 0), V(159, -4, 0)),
    Part.LineSegment(V(159, -4, 0), V(165, -4, 0)),
    Part.LineSegment(V(165, -4, 0), V(165, -64, 0)),
    Part.LineSegment(V(165, -64, 0), V(136, -64, 0)),
    Part.LineSegment(V(136, -64, 0), V(136, -4, 0)),
    Part.LineSegment(V(136, -4, 0), V(38, -4, 0)),
    Part.LineSegment(V(38, -4, 0), V(38, -64, 0)),
], False)
sketch15.addConstraint([
    Sketcher.Constraint("Coincident", 0, 2, 1, 1),
    Sketcher.Constraint("Coincident", 1, 2, 2, 1),
    Sketcher.Constraint("Coincident", 2, 2, 3, 1),
    Sketcher.Constraint("Coincident", 3, 2, 4, 1),
    Sketcher.Constraint("Coincident", 4, 2, 5, 1),
    Sketcher.Constraint("Coincident", 5, 2, 6, 1),
    Sketcher.Constraint("Coincident", 6, 2, 7, 1),
    Sketcher.Constraint("Coincident", 7, 2, 8, 1),
    Sketcher.Constraint("Coincident", 8, 2, 9, 1),
    Sketcher.Constraint("Coincident", 9, 2, 0, 1),
    Sketcher.Constraint("Horizontal", 0),
    Sketcher.Constraint("Vertical", 1),
    Sketcher.Constraint("Horizontal", 2),
    Sketcher.Constraint("Vertical", 3),
    Sketcher.Constraint("Horizontal", 4),
    Sketcher.Constraint("Vertical", 5),
    Sketcher.Constraint("Horizontal", 6),
    Sketcher.Constraint("Vertical", 7),
    Sketcher.Constraint("Horizontal", 8),
    Sketcher.Constraint("Vertical", 9),
    Sketcher.Constraint("Horizontal", 0, 2, 5, 2),
    Sketcher.Constraint("Horizontal", 4, 2, 7, 2),
    Sketcher.Constraint("DistanceX", 8, 2, 8, 1, Q("98 mm")),
    Sketcher.Constraint("DistanceY", 5, 2, 5, 1, Q("60 mm")),
    Sketcher.Constraint("DistanceY", 0, 2, -1, 1, Q("64 mm")),
    Sketcher.Constraint("DistanceX", -1, 1, 6, 2, Q("136 mm")),
    Sketcher.Constraint("DistanceX", 6, 2, 6, 1, Q("29.161001 mm")),
    Sketcher.Constraint("DistanceX", 4, 1, 4, 2, Q("6.604622 mm")),
    Sketcher.Constraint("DistanceX", 0, 2, 0, 1, Q("46.690723 mm")),
    Sketcher.Constraint("DistanceY", 1, 1, 1, 2, Q("66.980686 mm")),
])
pocket7 = doc.addObject("PartDesign::Pocket", "Pocket006")
body.addObject(pocket7)
pocket7.Profile = sketch15
pocket7.Type = "ThroughAll"
pocket7.Midplane = True

sketch16 = doc.addObject("Sketcher::SketchObject", "Sketch015")
body.addObject(sketch16)
sketch16.AttachmentSupport = (doc.XY_Plane, [""])
sketch16.MapMode = "FlatFace"
sketch16.AttachmentOffset = App.Placement(V(0, 0, -4), App.Rotation())
sketch16.addGeometry([
    Part.LineSegment(V(38, 5, 0), V(38, -3, 0)),
    Part.LineSegment(V(38, -3, 0), V(136, -3, 0)),
    Part.LineSegment(V(136, -3, 0), V(136, 5, 0)),
    Part.LineSegment(V(136, 5, 0), V(38, 5, 0)),
], False)
sketch16.addConstraint([
    Sketcher.Constraint("Coincident", 0, 2, 1, 1),
    Sketcher.Constraint("Coincident", 1, 2, 2, 1),
    Sketcher.Constraint("Coincident", 2, 2, 3, 1),
    Sketcher.Constraint("Coincident", 3, 2, 0, 1),
    Sketcher.Constraint("Vertical", 0),
    Sketcher.Constraint("Horizontal", 1),
    Sketcher.Constraint("Vertical", 2),
    Sketcher.Constraint("Horizontal", 3),
    Sketcher.Constraint("DistanceX", 1, 1, 1, 2, Q("98 mm")),
    Sketcher.Constraint("DistanceY", 0, 2, 0, 1, Q("8 mm")),
    Sketcher.Constraint("DistanceX", -1, 1, 0, 2, Q("38 mm")),
    Sketcher.Constraint("DistanceY", 0, 2, -1, 1, Q("3 mm")),
])
pocket8 = doc.addObject("PartDesign::Pocket", "Pocket007")
body.addObject(pocket8)
pocket8.Profile = sketch16
pocket8.Length = 69

doc.recompute()
